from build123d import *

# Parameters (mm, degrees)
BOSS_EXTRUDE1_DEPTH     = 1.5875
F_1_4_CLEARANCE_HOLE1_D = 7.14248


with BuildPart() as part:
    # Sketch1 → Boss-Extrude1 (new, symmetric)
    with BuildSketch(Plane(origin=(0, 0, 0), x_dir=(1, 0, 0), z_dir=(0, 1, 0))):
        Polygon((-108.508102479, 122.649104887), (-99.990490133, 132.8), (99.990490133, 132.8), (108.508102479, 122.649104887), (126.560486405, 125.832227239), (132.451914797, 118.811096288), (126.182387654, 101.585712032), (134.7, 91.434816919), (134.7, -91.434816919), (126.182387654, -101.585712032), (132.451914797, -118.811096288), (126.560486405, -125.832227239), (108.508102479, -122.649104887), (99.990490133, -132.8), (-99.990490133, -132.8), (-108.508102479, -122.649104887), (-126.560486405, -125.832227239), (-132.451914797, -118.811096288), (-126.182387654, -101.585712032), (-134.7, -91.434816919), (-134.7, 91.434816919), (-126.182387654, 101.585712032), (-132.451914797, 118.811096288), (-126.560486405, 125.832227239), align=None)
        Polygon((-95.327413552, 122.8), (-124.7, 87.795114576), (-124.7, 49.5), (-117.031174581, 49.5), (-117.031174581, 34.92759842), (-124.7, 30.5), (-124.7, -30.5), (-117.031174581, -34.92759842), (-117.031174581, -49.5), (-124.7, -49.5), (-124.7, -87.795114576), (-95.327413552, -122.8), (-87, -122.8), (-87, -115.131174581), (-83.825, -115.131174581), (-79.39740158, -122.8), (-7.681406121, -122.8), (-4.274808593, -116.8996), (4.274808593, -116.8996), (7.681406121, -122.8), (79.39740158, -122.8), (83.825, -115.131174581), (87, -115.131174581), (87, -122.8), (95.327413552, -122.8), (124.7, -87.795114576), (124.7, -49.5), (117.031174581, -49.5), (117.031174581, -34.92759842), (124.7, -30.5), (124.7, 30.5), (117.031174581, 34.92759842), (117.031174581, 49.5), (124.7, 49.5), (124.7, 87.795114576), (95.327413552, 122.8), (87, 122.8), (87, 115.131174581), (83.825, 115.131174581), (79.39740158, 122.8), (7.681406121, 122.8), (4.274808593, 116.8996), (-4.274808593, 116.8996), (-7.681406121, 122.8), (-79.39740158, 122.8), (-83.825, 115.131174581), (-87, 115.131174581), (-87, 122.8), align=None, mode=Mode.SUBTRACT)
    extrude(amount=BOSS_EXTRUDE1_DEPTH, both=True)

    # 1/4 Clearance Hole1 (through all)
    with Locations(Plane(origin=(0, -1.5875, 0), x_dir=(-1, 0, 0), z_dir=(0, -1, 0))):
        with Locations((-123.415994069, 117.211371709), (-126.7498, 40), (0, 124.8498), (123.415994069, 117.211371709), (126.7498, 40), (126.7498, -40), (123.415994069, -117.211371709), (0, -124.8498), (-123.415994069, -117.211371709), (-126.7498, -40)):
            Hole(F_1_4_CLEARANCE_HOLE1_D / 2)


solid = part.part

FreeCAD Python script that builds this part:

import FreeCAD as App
import Part
import Sketcher

V = App.Vector
Q = App.Units.Quantity


def add_polygon(sketch, points):
    """Adds a closed chain of lines whose ends are joined by coincident constraints."""
    first, n = sketch.GeometryCount, len(points)
    for a, b in zip(points, points[1:] + points[:1]):
        sketch.addGeometry(Part.LineSegment(App.Vector(*a, 0), App.Vector(*b, 0)), False)
    for i in range(n):
        sketch.addConstraint(Sketcher.Constraint("Coincident", first + i, 2, first + (i + 1) % n, 1))

doc = App.newDocument("Part")
body = doc.addObject("PartDesign::Body", "Body")

# Sketch on XZ plane
sketch1 = body.newObject("Sketcher::SketchObject", "Sketch")
sketch1.AttachmentSupport = (doc.getObject("XZ_Plane"), [""])
sketch1.MapMode = "FlatFace"
add_polygon(sketch1, [(-100, -132.8), (-108.5, -122.6), (-126.6, -125.8), (-132.5, -118.8), (-126.2, -101.6), (-134.7, -91.4), (-134.7, 91.4), (-126.2, 101.6), (-132.5, 118.8), (-126.6, 125.8), (-108.5, 122.6), (-100, 132.8), (100, 132.8), (108.5, 122.6), (126.6, 125.8), (132.5, 118.8), (126.2, 101.6), (134.7, 91.4), (134.7, -91.4), (126.2, -101.6), (132.5, -118.8), (126.6, -125.8), (108.5, -122.6), (100, -132.8)])  # lines 0-23
add_polygon(sketch1, [(-95.3, -122.8), (-87, -122.8), (-87, -115.1), (-83.8, -115.1), (-79.4, -122.8), (-7.7, -122.8), (-4.3, -116.9), (4.3, -116.9), (7.7, -122.8), (79.4, -122.8), (83.8, -115.1), (87, -115.1), (87, -122.8), (95.3, -122.8), (124.7, -87.8), (124.7, -49.5), (117, -49.5), (117, -34.9), (124.7, -30.5), (124.7, 30.5), (117, 34.9), (117, 49.5), (124.7, 49.5), (124.7, 87.8), (95.3, 122.8), (87, 122.8), (87, 115.1), (83.8, 115.1), (79.4, 122.8), (7.7, 122.8), (4.3, 116.9), (-4.3, 116.9), (-7.7, 122.8), (-79.4, 122.8), (-83.8, 115.1), (-87, 115.1), (-87, 122.8), (-95.3, 122.8), (-124.7, 87.8), (-124.7, 49.5), (-117, 49.5), (-117, 34.9), (-124.7, 30.5), (-124.7, -30.5), (-117, -34.9), (-117, -49.5), (-124.7, -49.5), (-124.7, -87.8)])  # lines 24-71
sketch1.addConstraint([
    Sketcher.Constraint("Vertical", 5),
    Sketcher.Constraint("Horizontal", 11),
    Sketcher.Constraint("Vertical", 17),
    Sketcher.Constraint("Horizontal", 23),
    Sketcher.Constraint("Horizontal", 24),
    Sketcher.Constraint("Vertical", 25),
    Sketcher.Constraint("Horizontal", 26),
    Sketcher.Constraint("Horizontal", 28),
    Sketcher.Constraint("Horizontal", 30),
    Sketcher.Constraint("Horizontal", 32),
    Sketcher.Constraint("Horizontal", 34),
    Sketcher.Constraint("Vertical", 35),
    Sketcher.Constraint("Horizontal", 36),
    Sketcher.Constraint("Vertical", 38),
    Sketcher.Constraint("Horizontal", 39),
    Sketcher.Constraint("Vertical", 40),
    Sketcher.Constraint("Vertical", 42),
    Sketcher.Constraint("Vertical", 44),
    Sketcher.Constraint("Horizontal", 45),
    Sketcher.Constraint("Vertical", 46),
    Sketcher.Constraint("Horizontal", 48),
    Sketcher.Constraint("Vertical", 49),
    Sketcher.Constraint("Horizontal", 50),
    Sketcher.Constraint("Horizontal", 52),
    Sketcher.Constraint("Horizontal", 54),
    Sketcher.Constraint("Horizontal", 56),
    Sketcher.Constraint("Horizontal", 58),
    Sketcher.Constraint("Vertical", 59),
    Sketcher.Constraint("Horizontal", 60),
    Sketcher.Constraint("Vertical", 62),
    Sketcher.Constraint("Horizontal", 63),
    Sketcher.Constraint("Vertical", 64),
    Sketcher.Constraint("Vertical", 66),
    Sketcher.Constraint("Vertical", 68),
    Sketcher.Constraint("Horizontal", 69),
    Sketcher.Constraint("Vertical", 70),
    Sketcher.Constraint("Symmetric", 0, 2, 12, 2, -1, 1),
    Sketcher.Constraint("Symmetric", 1, 2, 13, 2, -1, 1),
    Sketcher.Constraint("Symmetric", 2, 2, 14, 2, -1, 1),
    Sketcher.Constraint("Symmetric", 3, 2, 15, 2, -1, 1),
    Sketcher.Constraint("Symmetric", 4, 2, 16, 2, -1, 1),
    Sketcher.Constraint("Symmetric", 6, 2, 18, 2, -1, 1),
    Sketcher.Constraint("Symmetric", 7, 2, 19, 2, -1, 1),
    Sketcher.Constraint("Symmetric", 8, 2, 20, 2, -1, 1),
    Sketcher.Constraint("Symmetric", 9, 2, 21, 2, -1, 1),
    Sketcher.Constraint("Symmetric", 10, 2, 22, 2, -1, 1),
    Sketcher.Constraint("Symmetric", 24, 2, 48, 2, -1, 1),
    Sketcher.Constraint("Symmetric", 26, 2, 50, 2, -1, 1),
    Sketcher.Constraint("Symmetric", 27, 2, 51, 2, -1, 1),
    Sketcher.Constraint("Symmetric", 29, 2, 53, 2, -1, 1),
    Sketcher.Constraint("Symmetric", 31, 2, 55, 2, -1, 1),
    Sketcher.Constraint("Symmetric", 33, 2, 57, 2, -1, 1),
    Sketcher.Constraint("Symmetric", 35, 2, 59, 2, -1, 1),
    Sketcher.Constraint("Symmetric", 37, 2, 61, 2, -1, 1),
    Sketcher.Constraint("Symmetric", 39, 2, 63, 2, -1, 1),
    Sketcher.Constraint("Symmetric", 41, 2, 65, 2, -1, 1),
    Sketcher.Constraint("Symmetric", 43, 2, 67, 2, -1, 1),
    Sketcher.Constraint("Symmetric", 45, 2, 69, 2, -1, 1),
    Sketcher.Constraint("Symmetric", 9, 2, 12, 2, -2),
    Sketcher.Constraint("Symmetric", 8, 2, 13, 2, -2),
    Sketcher.Constraint("Symmetric", 7, 2, 14, 2, -2),
    Sketcher.Constraint("Symmetric", 6, 2, 15, 2, -2),
    Sketcher.Constraint("Symmetric", 28, 2, 31, 2, -2),
    Sketcher.Constraint("Symmetric", 26, 2, 33, 2, -2),
    Sketcher.Constraint("Symmetric", 24, 2, 35, 2, -2),
    Sketcher.Constraint("Symmetric", 46, 2, 61, 2, -2),
    Sketcher.Constraint("Symmetric", 44, 2, 63, 2, -2),
    Sketcher.Constraint("Parallel", 0, 2),
    Sketcher.Constraint("Parallel", 2, 4),
    Sketcher.Constraint("Parallel", 6, 8),
    Sketcher.Constraint("Parallel", 8, 10),
    Sketcher.Constraint("Parallel", 4, 12),
    Sketcher.Constraint("Parallel", 10, 18),
    Sketcher.Constraint("Parallel", 27, 31),
    Sketcher.Constraint("Parallel", 29, 33),
    Sketcher.Constraint("Parallel", 22, 37),
    Sketcher.Constraint("Perpendicular", 31, 41),
    Sketcher.Constraint("Perpendicular", 33, 43),
    Sketcher.Constraint("Parallel", 16, 47),
    Sketcher.Constraint("Perpendicular", 43, 53),
    Sketcher.Constraint("Parallel", 51, 55),
    Sketcher.Constraint("Parallel", 53, 57),
    Sketcher.Constraint("Parallel", 37, 61),
    Sketcher.Constraint("Perpendicular", 55, 65),
    Sketcher.Constraint("Perpendicular", 57, 67),
    Sketcher.Constraint("Parallel", 47, 71),
    Sketcher.Constraint("Horizontal", 24, 2, 27, 2),
    Sketcher.Constraint("Horizontal", 43, 2, 64, 2),
    Sketcher.Constraint("Horizontal", 42, 2, 65, 2),
    Sketcher.Constraint("Horizontal", 37, 2, 70, 2),
    Sketcher.Constraint("Vertical", 38, 2, 41, 2),
    Sketcher.Constraint("Equal", 69, 25),
    Sketcher.Constraint("Equal", 1, 3),
    Sketcher.Constraint("Equal", 0, 4),
    Sketcher.Constraint("Angle", 0, Q("130 deg")),
    Sketcher.Constraint("Angle", 1, Q("-170 deg")),
    Sketcher.Constraint("Angle", 3, Q("70 deg")),
    Sketcher.Constraint("Angle", 27, Q("-60 deg")),
    Sketcher.Constraint("DistanceX", 26, 1, 26, 2, Q("0.125 in")),
    Sketcher.Constraint("DistanceY", 40, 1, 40, 2, 14.572402),
    Sketcher.Constraint("DistanceY", 42, 1, 42, 2, 61.0),
    Sketcher.Constraint("DistanceX", 11, 1, 11, 2, 199.98098),
    Sketcher.Constraint("DistanceX", 4, 2, -1, 1, 134.7),
    Sketcher.Constraint("DistanceY", -1, 1, 10, 2, 132.8),
    Sketcher.Constraint("DistanceX", 24, 2, -1, 1, 87.0),
    Sketcher.Constraint("DistanceY", 24, 2, -1, 1, 122.8),
    Sketcher.Constraint("DistanceX", 27, 2, -1, 1, 79.397402),
    Sketcher.Constraint("DistanceY", 29, 2, -1, 1, 116.8996),
    Sketcher.Constraint("DistanceX", -1, 1, 37, 2, 124.7),
    Sketcher.Constraint("Distance", 1, 18.330871),
    Sketcher.Constraint("DistanceX", 24, 1, 24, 2, 8.327414),
    Sketcher.Constraint("DistanceX", 28, 1, 28, 2, 71.715995),
    Sketcher.Constraint("Distance", 0, 13.251052),
])
pad1 = body.newObject("PartDesign::Pad", "Pad")
pad1.Profile = sketch1
pad1.Length = Q("0.125 in")
pad1.Midplane = True

# Sketch on XZ plane
sketch2 = body.newObject("Sketcher::SketchObject", "Sketch001")
sketch2.AttachmentSupport = (doc.getObject("XZ_Plane"), [""])
sketch2.MapMode = "FlatFace"
sketch2.AttachmentOffset = App.Placement(V(0, 0, 0.0625 * 25.4), App.Rotation())
sketch2.addGeometry([
    Part.Circle(V(123.4, -117.2, 0), V(0, 0, 1), 3.6),  # 0
    Part.Circle(V(126.7, -40, 0), V(0, 0, 1), 3.6),  # 1
    Part.Circle(V(0, -124.8, 0), V(0, 0, 1), 3.6),  # 2
    Part.Circle(V(-123.4, -117.2, 0), V(0, 0, 1), 3.6),  # 3
    Part.Circle(V(-126.7, -40, 0), V(0, 0, 1), 3.6),  # 4
    Part.Circle(V(-126.7, 40, 0), V(0, 0, 1), 3.6),  # 5
    Part.Circle(V(-123.4, 117.2, 0), V(0, 0, 1), 3.6),  # 6
    Part.Circle(V(0, 124.8, 0), V(0, 0, 1), 3.6),  # 7
    Part.Circle(V(123.4, 117.2, 0), V(0, 0, 1), 3.6),  # 8
    Part.Circle(V(126.7, 40, 0), V(0, 0, 1), 3.6),  # 9
], False)
sketch2.addConstraint([
    Sketcher.Constraint("Equal", 0, 1),
    Sketcher.Constraint("Equal", 1, 2),
    Sketcher.Constraint("Equal", 2, 3),
    Sketcher.Constraint("Equal", 3, 4),
    Sketcher.Constraint("Equal", 4, 5),
    Sketcher.Constraint("Equal", 5, 6),
    Sketcher.Constraint("Equal", 6, 7),
    Sketcher.Constraint("Equal", 7, 8),
    Sketcher.Constraint("Equal", 8, 9),
    Sketcher.Constraint("Symmetric", 1, 3, 5, 3, -1, 1),
    Sketcher.Constraint("Symmetric", 0, 3, 6, 3, -1, 1),
    Sketcher.Constraint("Symmetric", 2, 3, 7, 3, -1, 1),
    Sketcher.Constraint("Symmetric", 3, 3, 8, 3, -1, 1),
    Sketcher.Constraint("Symmetric", 4, 3, 9, 3, -1, 1),
    Sketcher.Constraint("Symmetric", 0, 3, 3, 3, -2),
    Sketcher.Constraint("Symmetric", 1, 3, 4, 3, -2),
    Sketcher.Constraint("PointOnObject", 2, 3, -2),
    Sketcher.Constraint("Diameter", 0, Q("0.2812 in")),
    Sketcher.Constraint("DistanceX", -1, 1, 1, 3, 126.7498),
    Sketcher.Constraint("DistanceY", 1, 3, -1, 1, 40.0),
    Sketcher.Constraint("DistanceY", 2, 3, -1, 1, 124.8498),
    Sketcher.Constraint("DistanceY", 0, 3, -1, 1, 117.211372),
    Sketcher.Constraint("DistanceX", 3, 3, 0, 3, 246.831988),
])
doc.recompute()
hole = body.newObject("PartDesign::Hole", "Hole")
hole.Profile = sketch2
hole.ThreadType = "None"
hole.Diameter = Q("0.2812 in")
hole.DepthType = "ThroughAll"

doc.recompute()
